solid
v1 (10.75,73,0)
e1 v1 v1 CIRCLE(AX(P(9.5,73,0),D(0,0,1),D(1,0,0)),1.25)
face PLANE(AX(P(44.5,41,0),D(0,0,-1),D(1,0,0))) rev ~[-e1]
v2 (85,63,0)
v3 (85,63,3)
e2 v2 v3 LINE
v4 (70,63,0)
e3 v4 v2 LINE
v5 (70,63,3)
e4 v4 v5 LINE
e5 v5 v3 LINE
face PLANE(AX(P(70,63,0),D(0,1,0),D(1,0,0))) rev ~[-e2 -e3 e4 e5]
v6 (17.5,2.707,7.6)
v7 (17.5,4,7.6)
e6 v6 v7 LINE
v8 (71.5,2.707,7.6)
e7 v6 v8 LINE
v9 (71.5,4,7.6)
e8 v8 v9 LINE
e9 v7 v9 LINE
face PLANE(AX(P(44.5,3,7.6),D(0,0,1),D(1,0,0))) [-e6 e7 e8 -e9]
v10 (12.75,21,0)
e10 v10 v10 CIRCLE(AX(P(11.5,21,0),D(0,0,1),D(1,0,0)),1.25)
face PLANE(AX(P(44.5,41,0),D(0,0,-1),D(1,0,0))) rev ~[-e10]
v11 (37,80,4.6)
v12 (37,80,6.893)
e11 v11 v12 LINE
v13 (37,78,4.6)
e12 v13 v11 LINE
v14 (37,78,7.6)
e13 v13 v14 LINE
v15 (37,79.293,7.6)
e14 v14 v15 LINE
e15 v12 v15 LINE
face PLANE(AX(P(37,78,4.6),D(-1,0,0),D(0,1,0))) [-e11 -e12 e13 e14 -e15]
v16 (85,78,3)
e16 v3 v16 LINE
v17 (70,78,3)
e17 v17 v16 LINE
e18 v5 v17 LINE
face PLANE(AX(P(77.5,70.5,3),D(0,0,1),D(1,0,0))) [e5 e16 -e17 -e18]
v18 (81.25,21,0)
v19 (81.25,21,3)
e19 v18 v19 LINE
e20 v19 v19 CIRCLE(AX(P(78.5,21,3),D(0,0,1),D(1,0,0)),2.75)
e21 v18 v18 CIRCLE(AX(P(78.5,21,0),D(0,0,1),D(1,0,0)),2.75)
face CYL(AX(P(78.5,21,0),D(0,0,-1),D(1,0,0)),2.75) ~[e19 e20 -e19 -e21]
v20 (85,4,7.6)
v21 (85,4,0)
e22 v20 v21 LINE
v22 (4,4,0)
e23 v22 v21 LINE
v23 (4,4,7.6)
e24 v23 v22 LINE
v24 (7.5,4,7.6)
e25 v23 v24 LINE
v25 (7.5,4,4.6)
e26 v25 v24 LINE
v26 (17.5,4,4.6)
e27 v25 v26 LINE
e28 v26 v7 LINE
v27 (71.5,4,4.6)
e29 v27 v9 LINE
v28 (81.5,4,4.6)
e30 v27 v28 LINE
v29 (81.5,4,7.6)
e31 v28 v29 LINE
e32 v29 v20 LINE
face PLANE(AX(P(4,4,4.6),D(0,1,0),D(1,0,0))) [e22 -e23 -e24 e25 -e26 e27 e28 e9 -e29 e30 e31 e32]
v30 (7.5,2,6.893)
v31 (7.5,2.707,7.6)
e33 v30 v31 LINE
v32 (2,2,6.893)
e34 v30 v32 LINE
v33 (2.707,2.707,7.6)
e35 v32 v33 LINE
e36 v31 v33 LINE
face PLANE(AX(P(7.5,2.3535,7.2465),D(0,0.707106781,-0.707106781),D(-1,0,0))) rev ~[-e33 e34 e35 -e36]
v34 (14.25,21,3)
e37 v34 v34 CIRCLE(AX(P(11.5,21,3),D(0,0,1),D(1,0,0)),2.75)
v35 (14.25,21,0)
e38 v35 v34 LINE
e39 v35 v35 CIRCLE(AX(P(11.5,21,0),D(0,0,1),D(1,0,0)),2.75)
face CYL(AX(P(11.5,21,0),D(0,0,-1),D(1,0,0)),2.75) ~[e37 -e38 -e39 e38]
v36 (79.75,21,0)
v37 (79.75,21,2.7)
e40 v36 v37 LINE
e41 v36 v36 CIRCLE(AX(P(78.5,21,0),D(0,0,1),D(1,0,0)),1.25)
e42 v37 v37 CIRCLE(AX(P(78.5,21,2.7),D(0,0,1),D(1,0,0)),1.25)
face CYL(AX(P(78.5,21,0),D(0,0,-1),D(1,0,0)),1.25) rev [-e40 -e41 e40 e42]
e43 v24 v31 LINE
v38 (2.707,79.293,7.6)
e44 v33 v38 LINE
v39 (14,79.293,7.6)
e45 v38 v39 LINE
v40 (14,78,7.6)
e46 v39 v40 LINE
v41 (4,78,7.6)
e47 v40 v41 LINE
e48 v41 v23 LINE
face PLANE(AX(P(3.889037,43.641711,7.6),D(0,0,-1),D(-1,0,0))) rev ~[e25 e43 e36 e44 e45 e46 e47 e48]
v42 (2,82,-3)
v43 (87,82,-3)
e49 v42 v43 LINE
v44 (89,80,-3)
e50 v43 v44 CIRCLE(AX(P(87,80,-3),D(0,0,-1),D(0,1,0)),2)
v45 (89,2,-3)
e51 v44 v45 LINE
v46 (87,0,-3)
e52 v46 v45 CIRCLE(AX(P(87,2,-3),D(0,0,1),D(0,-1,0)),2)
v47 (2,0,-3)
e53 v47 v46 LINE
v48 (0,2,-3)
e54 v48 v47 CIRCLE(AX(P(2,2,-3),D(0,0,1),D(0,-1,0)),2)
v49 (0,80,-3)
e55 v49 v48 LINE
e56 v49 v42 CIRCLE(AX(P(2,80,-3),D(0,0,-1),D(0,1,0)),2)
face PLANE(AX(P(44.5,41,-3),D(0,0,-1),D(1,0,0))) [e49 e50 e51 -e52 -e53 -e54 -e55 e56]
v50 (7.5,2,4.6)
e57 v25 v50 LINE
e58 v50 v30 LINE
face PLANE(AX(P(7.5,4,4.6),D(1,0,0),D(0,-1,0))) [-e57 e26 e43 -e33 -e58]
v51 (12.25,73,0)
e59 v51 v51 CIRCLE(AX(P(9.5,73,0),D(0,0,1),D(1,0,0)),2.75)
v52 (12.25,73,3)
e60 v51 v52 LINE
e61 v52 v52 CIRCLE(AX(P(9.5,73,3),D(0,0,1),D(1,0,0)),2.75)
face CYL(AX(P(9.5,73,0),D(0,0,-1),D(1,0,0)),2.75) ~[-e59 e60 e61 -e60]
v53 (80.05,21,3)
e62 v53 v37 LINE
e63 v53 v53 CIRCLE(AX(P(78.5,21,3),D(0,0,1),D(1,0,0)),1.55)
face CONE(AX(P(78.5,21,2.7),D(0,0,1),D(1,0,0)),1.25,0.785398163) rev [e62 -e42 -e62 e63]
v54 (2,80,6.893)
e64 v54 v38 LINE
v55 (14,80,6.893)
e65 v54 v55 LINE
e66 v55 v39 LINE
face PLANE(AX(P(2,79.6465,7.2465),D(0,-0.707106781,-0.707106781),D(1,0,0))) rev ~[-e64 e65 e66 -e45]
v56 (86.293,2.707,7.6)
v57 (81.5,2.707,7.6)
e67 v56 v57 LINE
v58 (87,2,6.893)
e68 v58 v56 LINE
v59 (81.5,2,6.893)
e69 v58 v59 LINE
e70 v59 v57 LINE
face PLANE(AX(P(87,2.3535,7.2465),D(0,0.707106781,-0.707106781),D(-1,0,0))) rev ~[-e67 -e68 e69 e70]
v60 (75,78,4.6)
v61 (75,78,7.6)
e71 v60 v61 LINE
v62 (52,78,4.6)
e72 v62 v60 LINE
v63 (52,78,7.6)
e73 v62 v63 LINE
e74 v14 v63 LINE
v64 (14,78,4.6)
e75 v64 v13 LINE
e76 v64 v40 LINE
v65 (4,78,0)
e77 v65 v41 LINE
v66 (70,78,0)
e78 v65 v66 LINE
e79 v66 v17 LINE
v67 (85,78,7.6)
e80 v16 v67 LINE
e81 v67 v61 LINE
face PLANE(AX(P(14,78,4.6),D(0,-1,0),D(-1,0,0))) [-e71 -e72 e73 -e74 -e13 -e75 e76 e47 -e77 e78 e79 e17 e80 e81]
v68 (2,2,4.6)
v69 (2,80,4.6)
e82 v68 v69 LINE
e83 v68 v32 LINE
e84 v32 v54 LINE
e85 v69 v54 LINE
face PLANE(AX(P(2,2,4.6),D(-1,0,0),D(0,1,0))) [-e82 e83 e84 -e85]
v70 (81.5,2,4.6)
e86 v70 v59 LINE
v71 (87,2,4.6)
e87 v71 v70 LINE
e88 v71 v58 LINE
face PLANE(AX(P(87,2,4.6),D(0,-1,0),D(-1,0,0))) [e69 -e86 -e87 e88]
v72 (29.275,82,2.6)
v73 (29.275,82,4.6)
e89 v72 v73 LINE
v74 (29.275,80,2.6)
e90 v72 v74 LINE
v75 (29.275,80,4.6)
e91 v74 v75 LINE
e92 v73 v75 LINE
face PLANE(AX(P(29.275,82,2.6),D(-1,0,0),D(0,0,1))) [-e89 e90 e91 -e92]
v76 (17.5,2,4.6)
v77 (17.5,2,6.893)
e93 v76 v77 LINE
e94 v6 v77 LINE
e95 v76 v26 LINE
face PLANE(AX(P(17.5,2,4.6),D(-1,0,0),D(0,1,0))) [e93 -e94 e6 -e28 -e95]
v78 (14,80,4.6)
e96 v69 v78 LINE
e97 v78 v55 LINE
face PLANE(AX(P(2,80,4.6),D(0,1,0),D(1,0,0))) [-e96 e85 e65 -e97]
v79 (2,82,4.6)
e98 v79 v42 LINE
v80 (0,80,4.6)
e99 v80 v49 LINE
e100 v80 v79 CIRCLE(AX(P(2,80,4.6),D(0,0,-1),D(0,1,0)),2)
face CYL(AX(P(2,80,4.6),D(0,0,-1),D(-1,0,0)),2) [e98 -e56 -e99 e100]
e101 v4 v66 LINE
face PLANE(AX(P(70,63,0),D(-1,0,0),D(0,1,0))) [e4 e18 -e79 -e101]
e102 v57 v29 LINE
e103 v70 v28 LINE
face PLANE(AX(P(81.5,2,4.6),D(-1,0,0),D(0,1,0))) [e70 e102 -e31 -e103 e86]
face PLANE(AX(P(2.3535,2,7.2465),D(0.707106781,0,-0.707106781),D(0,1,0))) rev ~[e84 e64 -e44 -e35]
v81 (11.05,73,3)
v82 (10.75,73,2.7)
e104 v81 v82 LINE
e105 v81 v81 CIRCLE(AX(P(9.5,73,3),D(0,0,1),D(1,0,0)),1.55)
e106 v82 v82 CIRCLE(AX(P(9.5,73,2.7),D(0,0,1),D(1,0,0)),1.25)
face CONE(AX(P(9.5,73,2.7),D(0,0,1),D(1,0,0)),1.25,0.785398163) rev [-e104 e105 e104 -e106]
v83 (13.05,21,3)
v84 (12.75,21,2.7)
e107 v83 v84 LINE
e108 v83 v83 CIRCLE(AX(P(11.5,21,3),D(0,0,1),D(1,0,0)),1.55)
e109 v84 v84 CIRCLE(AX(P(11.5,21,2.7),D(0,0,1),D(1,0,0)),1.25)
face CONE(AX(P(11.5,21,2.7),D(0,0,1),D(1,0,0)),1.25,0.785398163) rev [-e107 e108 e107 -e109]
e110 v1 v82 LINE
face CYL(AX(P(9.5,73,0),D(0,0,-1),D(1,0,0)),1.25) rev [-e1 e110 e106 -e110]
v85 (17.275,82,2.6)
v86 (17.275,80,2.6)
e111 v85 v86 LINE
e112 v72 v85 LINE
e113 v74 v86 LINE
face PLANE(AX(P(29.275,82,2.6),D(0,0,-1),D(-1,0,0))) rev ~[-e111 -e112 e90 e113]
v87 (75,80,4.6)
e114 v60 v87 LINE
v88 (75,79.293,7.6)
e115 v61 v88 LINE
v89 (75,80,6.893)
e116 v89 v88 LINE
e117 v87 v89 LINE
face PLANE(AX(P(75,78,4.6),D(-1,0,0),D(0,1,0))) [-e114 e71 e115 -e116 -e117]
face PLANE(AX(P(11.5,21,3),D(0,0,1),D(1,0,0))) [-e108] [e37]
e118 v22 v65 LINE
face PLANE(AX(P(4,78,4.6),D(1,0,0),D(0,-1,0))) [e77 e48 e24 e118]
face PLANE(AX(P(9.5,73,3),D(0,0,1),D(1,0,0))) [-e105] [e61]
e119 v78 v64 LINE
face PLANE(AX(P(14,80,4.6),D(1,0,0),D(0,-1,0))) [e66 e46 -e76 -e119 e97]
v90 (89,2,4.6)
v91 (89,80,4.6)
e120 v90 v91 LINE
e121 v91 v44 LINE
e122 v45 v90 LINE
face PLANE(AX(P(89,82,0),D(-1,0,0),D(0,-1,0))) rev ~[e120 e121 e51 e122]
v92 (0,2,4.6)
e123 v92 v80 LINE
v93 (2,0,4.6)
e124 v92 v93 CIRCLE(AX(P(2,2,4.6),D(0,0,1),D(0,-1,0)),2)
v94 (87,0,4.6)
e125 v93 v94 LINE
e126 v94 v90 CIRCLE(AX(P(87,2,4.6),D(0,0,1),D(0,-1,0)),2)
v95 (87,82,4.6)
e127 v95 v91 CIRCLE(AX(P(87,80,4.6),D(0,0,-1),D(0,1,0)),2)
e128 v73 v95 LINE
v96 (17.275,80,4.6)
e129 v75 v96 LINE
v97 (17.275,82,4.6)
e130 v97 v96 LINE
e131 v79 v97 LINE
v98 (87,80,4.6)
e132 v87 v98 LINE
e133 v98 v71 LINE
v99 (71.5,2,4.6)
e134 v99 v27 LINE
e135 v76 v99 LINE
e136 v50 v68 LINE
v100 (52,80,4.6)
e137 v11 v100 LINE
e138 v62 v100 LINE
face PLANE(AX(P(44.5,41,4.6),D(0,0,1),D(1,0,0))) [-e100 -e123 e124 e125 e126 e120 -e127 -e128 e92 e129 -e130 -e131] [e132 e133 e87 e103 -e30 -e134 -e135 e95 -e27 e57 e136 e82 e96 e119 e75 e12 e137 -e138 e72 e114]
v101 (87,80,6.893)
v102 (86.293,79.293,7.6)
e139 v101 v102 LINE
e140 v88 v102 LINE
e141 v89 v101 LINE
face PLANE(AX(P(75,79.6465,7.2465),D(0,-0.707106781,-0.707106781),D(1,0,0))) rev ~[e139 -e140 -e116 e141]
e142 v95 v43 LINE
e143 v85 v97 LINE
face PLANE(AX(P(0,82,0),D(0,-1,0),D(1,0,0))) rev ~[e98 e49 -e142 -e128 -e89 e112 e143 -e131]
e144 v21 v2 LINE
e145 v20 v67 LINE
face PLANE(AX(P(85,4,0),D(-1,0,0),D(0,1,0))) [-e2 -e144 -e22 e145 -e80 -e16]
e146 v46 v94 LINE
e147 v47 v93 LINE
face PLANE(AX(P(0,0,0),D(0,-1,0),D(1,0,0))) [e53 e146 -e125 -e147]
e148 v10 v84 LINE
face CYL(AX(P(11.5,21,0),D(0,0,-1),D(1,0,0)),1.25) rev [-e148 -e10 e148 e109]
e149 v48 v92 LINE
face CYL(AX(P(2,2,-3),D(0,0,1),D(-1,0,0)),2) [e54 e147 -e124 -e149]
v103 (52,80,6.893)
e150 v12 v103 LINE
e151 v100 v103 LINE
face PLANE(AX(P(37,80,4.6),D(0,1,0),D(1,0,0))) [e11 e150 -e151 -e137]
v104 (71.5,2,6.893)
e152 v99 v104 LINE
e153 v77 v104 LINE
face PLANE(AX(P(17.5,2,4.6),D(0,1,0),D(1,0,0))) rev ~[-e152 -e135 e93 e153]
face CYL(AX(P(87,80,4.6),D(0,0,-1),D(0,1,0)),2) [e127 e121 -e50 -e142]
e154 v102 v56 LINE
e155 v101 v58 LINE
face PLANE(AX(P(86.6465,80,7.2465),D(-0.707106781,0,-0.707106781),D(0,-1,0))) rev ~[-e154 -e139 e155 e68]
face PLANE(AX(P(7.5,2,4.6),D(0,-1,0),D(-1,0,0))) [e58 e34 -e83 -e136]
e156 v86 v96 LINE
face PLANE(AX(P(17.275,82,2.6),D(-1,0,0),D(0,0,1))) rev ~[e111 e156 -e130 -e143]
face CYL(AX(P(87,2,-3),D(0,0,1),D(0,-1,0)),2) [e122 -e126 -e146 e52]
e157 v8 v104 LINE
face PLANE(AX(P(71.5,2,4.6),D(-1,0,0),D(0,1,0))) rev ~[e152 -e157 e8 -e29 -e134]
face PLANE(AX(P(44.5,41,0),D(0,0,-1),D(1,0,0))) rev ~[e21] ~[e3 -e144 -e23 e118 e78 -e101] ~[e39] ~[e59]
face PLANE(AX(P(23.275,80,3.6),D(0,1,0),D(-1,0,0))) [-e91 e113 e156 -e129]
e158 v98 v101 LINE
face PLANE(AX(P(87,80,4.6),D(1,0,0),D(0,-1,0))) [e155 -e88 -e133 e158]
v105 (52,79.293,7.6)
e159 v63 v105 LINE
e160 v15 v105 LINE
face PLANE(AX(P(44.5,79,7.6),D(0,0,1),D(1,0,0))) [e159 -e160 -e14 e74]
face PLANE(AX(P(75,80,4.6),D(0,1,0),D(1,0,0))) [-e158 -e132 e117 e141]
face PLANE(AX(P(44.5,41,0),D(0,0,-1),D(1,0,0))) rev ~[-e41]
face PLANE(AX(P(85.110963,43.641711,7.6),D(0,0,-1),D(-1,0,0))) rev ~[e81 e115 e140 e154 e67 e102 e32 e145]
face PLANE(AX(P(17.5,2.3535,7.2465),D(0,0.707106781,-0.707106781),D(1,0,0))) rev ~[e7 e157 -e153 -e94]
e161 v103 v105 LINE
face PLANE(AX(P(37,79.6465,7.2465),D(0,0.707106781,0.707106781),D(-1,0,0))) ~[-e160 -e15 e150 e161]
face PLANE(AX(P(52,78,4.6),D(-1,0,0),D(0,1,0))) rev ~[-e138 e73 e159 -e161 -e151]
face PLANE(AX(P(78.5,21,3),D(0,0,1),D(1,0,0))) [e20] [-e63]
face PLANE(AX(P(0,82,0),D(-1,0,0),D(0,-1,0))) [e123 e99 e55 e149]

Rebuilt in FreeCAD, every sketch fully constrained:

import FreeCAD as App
import Part
import Sketcher

V = App.Vector


def edges_at(feature, points):
    """Names of the edges that pass closest to the given points."""
    edges = feature.Shape.Edges
    near = lambda p: min(range(len(edges)), key=lambda i: edges[i].distToShape(Part.Vertex(*p))[0])
    return sorted({f"Edge{near(p) + 1}" for p in points})


def add_polygon(sketch, points):
    """Adds a closed chain of lines whose ends are joined by coincident constraints."""
    first, n = sketch.GeometryCount, len(points)
    for a, b in zip(points, points[1:] + points[:1]):
        sketch.addGeometry(Part.LineSegment(App.Vector(*a, 0), App.Vector(*b, 0)), False)
    for i in range(n):
        sketch.addConstraint(Sketcher.Constraint("Coincident", first + i, 2, first + (i + 1) % n, 1))

doc = App.newDocument("Part")
body = doc.addObject("PartDesign::Body", "Body")

# Sketch on XY plane
sketch1 = body.newObject("Sketcher::SketchObject", "Sketch")
sketch1.AttachmentSupport = (doc.getObject("XY_Plane"), [""])
sketch1.MapMode = "FlatFace"
add_polygon(sketch1, [(0, 82), (0, 0), (89, 0), (89, 82)])  # lines 0-3
add_polygon(sketch1, [(85, 4), (4, 4), (4, 78), (85, 78)])  # lines 4-7
sketch1.addConstraint(Sketcher.Constraint("Vertical", 0))
sketch1.addConstraint(Sketcher.Constraint("Horizontal", 1))
sketch1.addConstraint(Sketcher.Constraint("Vertical", 2))
sketch1.addConstraint(Sketcher.Constraint("Horizontal", 3))
sketch1.addConstraint(Sketcher.Constraint("Horizontal", 4))
sketch1.addConstraint(Sketcher.Constraint("Vertical", 5))
sketch1.addConstraint(Sketcher.Constraint("Horizontal", 6))
sketch1.addConstraint(Sketcher.Constraint("Vertical", 7))
sketch1.addConstraint(Sketcher.Constraint("Coincident", 0, 2, -1, 1))
sketch1.addConstraint(Sketcher.Constraint("DistanceX", 1, 1, 1, 2, 89.0))
sketch1.addConstraint(Sketcher.Constraint("DistanceX", 4, 2, 4, 1, 81.0))
sketch1.addConstraint(Sketcher.Constraint("DistanceY", 0, 2, 0, 1, 82.0))
sketch1.addConstraint(Sketcher.Constraint("DistanceY", 5, 1, 5, 2, 74.0))
sketch1.addConstraint(Sketcher.Constraint("DistanceX", -1, 1, 4, 2, 4.0))
sketch1.addConstraint(Sketcher.Constraint("DistanceY", -1, 1, 4, 2, 4.0))
pad1 = body.newObject("PartDesign::Pad", "Pad")
pad1.Profile = sketch1
pad1.Length = 4.6

# Sketch on XY plane
sketch2 = body.newObject("Sketcher::SketchObject", "Sketch001")
sketch2.AttachmentSupport = (doc.getObject("XY_Plane"), [""])
sketch2.MapMode = "FlatFace"
add_polygon(sketch2, [(0, 0), (0, 82), (89, 82), (89, 0)])  # lines 0-3
sketch2.addConstraint(Sketcher.Constraint("Vertical", 0))
sketch2.addConstraint(Sketcher.Constraint("Horizontal", 1))
sketch2.addConstraint(Sketcher.Constraint("Vertical", 2))
sketch2.addConstraint(Sketcher.Constraint("Horizontal", 3))
sketch2.addConstraint(Sketcher.Constraint("Coincident", 3, 2, -1, 1))
sketch2.addConstraint(Sketcher.Constraint("DistanceX", 1, 1, 1, 2, 89.0))
sketch2.addConstraint(Sketcher.Constraint("DistanceY", 0, 1, 0, 2, 82.0))
pad2 = body.newObject("PartDesign::Pad", "Pad001")
pad2.Profile = sketch2
pad2.Length = 3
pad2.Reversed = True

# Sketch on XY plane
sketch3 = body.newObject("Sketcher::SketchObject", "Sketch002")
sketch3.AttachmentSupport = (doc.getObject("XY_Plane"), [""])
sketch3.MapMode = "FlatFace"
sketch3.addGeometry(Part.Circle(V(9.5, 73, 0), V(0, 0, 1), 2.75), False)
sketch3.addGeometry(Part.Circle(V(9.5, 73, 0), V(0, 0, 1), 1.25), False)
sketch3.addGeometry(Part.Circle(V(78.5, 21, 0), V(0, 0, 1), 2.75), False)
sketch3.addGeometry(Part.Circle(V(78.5, 21, 0), V(0, 0, 1), 1.25), False)
sketch3.addGeometry(Part.Circle(V(11.5, 21, 0), V(0, 0, 1), 2.75), False)
sketch3.addGeometry(Part.Circle(V(11.5, 21, 0), V(0, 0, 1), 1.25), False)
sketch3.addConstraint(Sketcher.Constraint("Coincident", 1, 3, 0, 3))
sketch3.addConstraint(Sketcher.Constraint("Coincident", 3, 3, 2, 3))
sketch3.addConstraint(Sketcher.Constraint("Coincident", 5, 3, 4, 3))
sketch3.addConstraint(Sketcher.Constraint("Equal", 0, 2))
sketch3.addConstraint(Sketcher.Constraint("Equal", 1, 3))
sketch3.addConstraint(Sketcher.Constraint("Equal", 2, 4))
sketch3.addConstraint(Sketcher.Constraint("Equal", 3, 5))
sketch3.addConstraint(Sketcher.Constraint("Horizontal", 3, 3, 4, 3))
sketch3.addConstraint(Sketcher.Constraint("Diameter", 0, 5.5))
sketch3.addConstraint(Sketcher.Constraint("Diameter", 1, 2.5))
sketch3.addConstraint(Sketcher.Constraint("DistanceY", -1, 1, 0, 3, 73.0))
sketch3.addConstraint(Sketcher.Constraint("DistanceY", -1, 1, 2, 3, 21.0))
sketch3.addConstraint(Sketcher.Constraint("DistanceX", 0, 3, 2, 3, 69.0))
sketch3.addConstraint(Sketcher.Constraint("DistanceX", 0, 3, 4, 3, 2.0))
sketch3.addConstraint(Sketcher.Constraint("DistanceX", -1, 1, 0, 3, 9.5))
pad3 = body.newObject("PartDesign::Pad", "Pad002")
pad3.Profile = sketch3
pad3.Length = 3

# Sketch on XY plane
sketch4 = body.newObject("Sketcher::SketchObject", "Sketch003")
sketch4.AttachmentSupport = (doc.getObject("XY_Plane"), [""])
sketch4.MapMode = "FlatFace"
add_polygon(sketch4, [(70, 78), (70, 63), (85, 63), (85, 78)])  # lines 0-3
sketch4.addConstraint(Sketcher.Constraint("Vertical", 0))
sketch4.addConstraint(Sketcher.Constraint("Horizontal", 1))
sketch4.addConstraint(Sketcher.Constraint("Vertical", 2))
sketch4.addConstraint(Sketcher.Constraint("Horizontal", 3))
sketch4.addConstraint(Sketcher.Constraint("Equal", 3, 0))
sketch4.addConstraint(Sketcher.Constraint("DistanceX", 1, 1, 1, 2, 15.0))
sketch4.addConstraint(Sketcher.Constraint("DistanceX", -1, 1, 0, 2, 70.0))
sketch4.addConstraint(Sketcher.Constraint("DistanceY", -1, 1, 0, 2, 63.0))
pad4 = body.newObject("PartDesign::Pad", "Pad003")
pad4.Profile = sketch4
pad4.Length = 3
doc.recompute()

fillet = body.newObject("PartDesign::Fillet", "Fillet")
fillet.Base = (pad4, edges_at(pad4, [
    (89, 0, 0.8),
    (89, 82, 0.8),
    (0, 0, 0.8),
    (0, 82, 0.8),
]))
fillet.Radius = 2
doc.recompute()

chamfer = body.newObject("PartDesign::Chamfer", "Chamfer")
chamfer.Base = (fillet, edges_at(fillet, [(8.25, 73, 3), (10.25, 21, 3), (77.25, 21, 3)]))
chamfer.Size = 0.3

# Sketch on XY plane
sketch5 = body.newObject("Sketcher::SketchObject", "Sketch004")
sketch5.AttachmentSupport = (doc.getObject("XY_Plane"), [""])
sketch5.MapMode = "FlatFace"
sketch5.AttachmentOffset = App.Placement(V(0, 0, 4.6), App.Rotation())
add_polygon(sketch5, [(4, 4), (4, 78), (14, 78), (14, 80), (2, 80), (2, 2), (7.5, 2), (7.5, 4)])  # lines 0-7
add_polygon(sketch5, [(85, 78), (85, 4), (81.5, 4), (81.5, 2), (87, 2), (87, 80), (75, 80), (75, 78)])  # lines 8-15
add_polygon(sketch5, [(37, 80), (37, 78), (52, 78), (52, 80)])  # lines 16-19
add_polygon(sketch5, [(17.5, 4), (17.5, 2), (71.5, 2), (71.5, 4)])  # lines 20-23
sketch5.addConstraint(Sketcher.Constraint("Vertical", 0))
sketch5.addConstraint(Sketcher.Constraint("Horizontal", 1))
sketch5.addConstraint(Sketcher.Constraint("Vertical", 2))
sketch5.addConstraint(Sketcher.Constraint("Horizontal", 3))
sketch5.addConstraint(Sketcher.Constraint("Vertical", 4))
sketch5.addConstraint(Sketcher.Constraint("Horizontal", 5))
sketch5.addConstraint(Sketcher.Constraint("Vertical", 6))
sketch5.addConstraint(Sketcher.Constraint("Horizontal", 7))
sketch5.addConstraint(Sketcher.Constraint("Vertical", 8))
sketch5.addConstraint(Sketcher.Constraint("Horizontal", 9))
sketch5.addConstraint(Sketcher.Constraint("Vertical", 10))
sketch5.addConstraint(Sketcher.Constraint("Horizontal", 11))
sketch5.addConstraint(Sketcher.Constraint("Vertical", 12))
sketch5.addConstraint(Sketcher.Constraint("Horizontal", 13))
sketch5.addConstraint(Sketcher.Constraint("Vertical", 14))
sketch5.addConstraint(Sketcher.Constraint("Horizontal", 15))
sketch5.addConstraint(Sketcher.Constraint("Vertical", 16))
sketch5.addConstraint(Sketcher.Constraint("Horizontal", 17))
sketch5.addConstraint(Sketcher.Constraint("Vertical", 18))
sketch5.addConstraint(Sketcher.Constraint("Horizontal", 19))
sketch5.addConstraint(Sketcher.Constraint("Vertical", 20))
sketch5.addConstraint(Sketcher.Constraint("Horizontal", 21))
sketch5.addConstraint(Sketcher.Constraint("Vertical", 22))
sketch5.addConstraint(Sketcher.Constraint("Horizontal", 23))
sketch5.addConstraint(Sketcher.Constraint("Horizontal", 7, 2, 8, 2))
sketch5.addConstraint(Sketcher.Constraint("Horizontal", 5, 2, 10, 2))
sketch5.addConstraint(Sketcher.Constraint("Horizontal", 3, 2, 12, 2))
sketch5.addConstraint(Sketcher.Constraint("Horizontal", 1, 2, 14, 2))
sketch5.addConstraint(Sketcher.Constraint("Horizontal", 15, 2, 16, 2))
sketch5.addConstraint(Sketcher.Constraint("Horizontal", 13, 2, 18, 2))
sketch5.addConstraint(Sketcher.Constraint("Horizontal", 11, 2, 20, 2))
sketch5.addConstraint(Sketcher.Constraint("Horizontal", 9, 2, 22, 2))
sketch5.addConstraint(Sketcher.Constraint("Equal", 7, 9))
sketch5.addConstraint(Sketcher.Constraint("Equal", 5, 11))
sketch5.addConstraint(Sketcher.Constraint("Equal", 3, 13))
sketch5.addConstraint(Sketcher.Constraint("Equal", 2, 6))
sketch5.addConstraint(Sketcher.Constraint("DistanceX", 1, 1, 1, 2, 10.0))
sketch5.addConstraint(Sketcher.Constraint("DistanceX", 3, 2, 3, 1, 12.0))
sketch5.addConstraint(Sketcher.Constraint("DistanceX", 17, 1, 17, 2, 15.0))
sketch5.addConstraint(Sketcher.Constraint("DistanceX", 21, 1, 21, 2, 54.0))
sketch5.addConstraint(Sketcher.Constraint("DistanceY", 0, 1, 0, 2, 74.0))
sketch5.addConstraint(Sketcher.Constraint("DistanceY", 2, 1, 2, 2, 2.0))
sketch5.addConstraint(Sketcher.Constraint("DistanceX", 5, 1, 5, 2, 5.5))
sketch5.addConstraint(Sketcher.Constraint("DistanceX", -1, 1, 0, 2, 4.0))
sketch5.addConstraint(Sketcher.Constraint("DistanceY", -1, 1, 0, 2, 78.0))
sketch5.addConstraint(Sketcher.Constraint("DistanceX", -1, 1, 8, 2, 85.0))
sketch5.addConstraint(Sketcher.Constraint("DistanceX", -1, 1, 16, 2, 37.0))
sketch5.addConstraint(Sketcher.Constraint("DistanceX", 5, 2, 20, 2, 10.0))
pad5 = body.newObject("PartDesign::Pad", "Pad004")
pad5.Profile = sketch5
pad5.Length = 3
doc.recompute()

chamfer2 = body.newObject("PartDesign::Chamfer", "Chamfer001")
chamfer2.Base = (pad5, edges_at(pad5, [
    (8, 80, 7.6),
    (2, 41, 7.6),
    (44.5, 80, 7.6),
    (81, 80, 7.6),
    (87, 41, 7.6),
    (84.25, 2, 7.6),
    (44.5, 2, 7.6),
    (4.75, 2, 7.6),
]))
chamfer2.Size = 0.707

# Sketch on XZ plane
sketch6 = body.newObject("Sketcher::SketchObject", "Sketch005")
sketch6.AttachmentSupport = (doc.getObject("XZ_Plane"), [""])
sketch6.MapMode = "FlatFace"
sketch6.AttachmentOffset = App.Placement(V(0, 0, -82), App.Rotation())
add_polygon(sketch6, [(29.275, 4.6), (29.275, 2.6), (17.275, 2.6), (17.275, 4.6)])  # lines 0-3
sketch6.addConstraint(Sketcher.Constraint("Vertical", 0))
sketch6.addConstraint(Sketcher.Constraint("Horizontal", 1))
sketch6.addConstraint(Sketcher.Constraint("Vertical", 2))
sketch6.addConstraint(Sketcher.Constraint("Horizontal", 3))
sketch6.addConstraint(Sketcher.Constraint("DistanceX", 1, 2, 1, 1, 12.0))
sketch6.addConstraint(Sketcher.Constraint("DistanceY", 0, 2, 0, 1, 2.0))
sketch6.addConstraint(Sketcher.Constraint("DistanceY", -1, 1, 0, 2, 2.6))
sketch6.addConstraint(Sketcher.Constraint("DistanceX", -1, 1, 0, 2, 29.275))
pocket1 = body.newObject("PartDesign::Pocket", "Pocket")
pocket1.Profile = sketch6
pocket1.Length = 2
pocket1.Reversed = True

doc.recompute()
